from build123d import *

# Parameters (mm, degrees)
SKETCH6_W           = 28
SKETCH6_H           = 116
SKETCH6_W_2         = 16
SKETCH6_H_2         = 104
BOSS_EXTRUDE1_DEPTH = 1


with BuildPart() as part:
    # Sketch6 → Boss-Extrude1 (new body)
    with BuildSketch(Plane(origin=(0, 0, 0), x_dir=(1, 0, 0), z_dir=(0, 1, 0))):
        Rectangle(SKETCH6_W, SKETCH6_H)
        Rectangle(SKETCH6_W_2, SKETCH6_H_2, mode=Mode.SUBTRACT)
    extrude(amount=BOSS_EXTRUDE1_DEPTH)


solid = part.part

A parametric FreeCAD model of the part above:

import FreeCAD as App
import Part
import Sketcher

V = App.Vector
Q = App.Units.Quantity

doc = App.newDocument("Part")
params = doc.addObject("Spreadsheet::Sheet", "Params")
for row, (alias, value) in enumerate([
    ("sketch1_width", "28 mm"),
    ("sketch1_width2", "16 mm"),
    ("sketch1_height", "116 mm"),
    ("sketch1_height2", "104 mm"),
    ("pad1_length", "1 mm"),
], start=1):
    params.set(f"A{row}", alias)
    params.set(f"B{row}", "=" + value)
    params.setAlias(f"B{row}", alias)

body = doc.addObject("PartDesign::Body", "Body")

sketch1 = body.newObject("Sketcher::SketchObject", "Sketch")
sketch1.AttachmentSupport = (doc.getObject("XZ_Plane"), [""])
sketch1.MapMode = "FlatFace"
sketch1.addGeometry(Part.LineSegment(V(-14, -58, 0), V(-14, 58, 0)), False)
sketch1.addGeometry(Part.LineSegment(V(-14, 58, 0), V(14, 58, 0)), False)
sketch1.addGeometry(Part.LineSegment(V(14, 58, 0), V(14, -58, 0)), False)
sketch1.addGeometry(Part.LineSegment(V(14, -58, 0), V(-14, -58, 0)), False)
sketch1.addGeometry(Part.LineSegment(V(8, 52, 0), V(-8, 52, 0)), False)
sketch1.addGeometry(Part.LineSegment(V(-8, 52, 0), V(-8, -52, 0)), False)
sketch1.addGeometry(Part.LineSegment(V(-8, -52, 0), V(8, -52, 0)), False)
sketch1.addGeometry(Part.LineSegment(V(8, -52, 0), V(8, 52, 0)), False)
sketch1.addConstraint(Sketcher.Constraint("Coincident", 0, 2, 1, 1))
sketch1.addConstraint(Sketcher.Constraint("Coincident", 1, 2, 2, 1))
sketch1.addConstraint(Sketcher.Constraint("Coincident", 2, 2, 3, 1))
sketch1.addConstraint(Sketcher.Constraint("Coincident", 3, 2, 0, 1))
sketch1.addConstraint(Sketcher.Constraint("Coincident", 4, 2, 5, 1))
sketch1.addConstraint(Sketcher.Constraint("Coincident", 5, 2, 6, 1))
sketch1.addConstraint(Sketcher.Constraint("Coincident", 6, 2, 7, 1))
sketch1.addConstraint(Sketcher.Constraint("Coincident", 7, 2, 4, 1))
sketch1.addConstraint(Sketcher.Constraint("Vertical", 0))
sketch1.addConstraint(Sketcher.Constraint("Horizontal", 1))
sketch1.addConstraint(Sketcher.Constraint("Vertical", 2))
sketch1.addConstraint(Sketcher.Constraint("Horizontal", 3))
sketch1.addConstraint(Sketcher.Constraint("Horizontal", 4))
sketch1.addConstraint(Sketcher.Constraint("Vertical", 5))
sketch1.addConstraint(Sketcher.Constraint("Horizontal", 6))
sketch1.addConstraint(Sketcher.Constraint("Vertical", 7))
sketch1.addConstraint(Sketcher.Constraint("Symmetric", 0, 2, 2, 2, -1, 1))
sketch1.addConstraint(Sketcher.Constraint("Symmetric", 4, 2, 6, 2, -1, 1))
sketch1.addConstraint(Sketcher.Constraint("DistanceX", 1, 1, 1, 2, Q("28 mm")))
sketch1.addConstraint(Sketcher.Constraint("DistanceX", 4, 2, 4, 1, Q("16 mm")))
sketch1.addConstraint(Sketcher.Constraint("DistanceY", 0, 1, 0, 2, Q("116 mm")))
sketch1.addConstraint(Sketcher.Constraint("DistanceY", 5, 2, 5, 1, Q("104 mm")))
sketch1.setExpression("Constraints[18]", "Params.sketch1_width")
sketch1.setExpression("Constraints[19]", "Params.sketch1_width2")
sketch1.setExpression("Constraints[20]", "Params.sketch1_height")
sketch1.setExpression("Constraints[21]", "Params.sketch1_height2")
pad1 = body.newObject("PartDesign::Pad", "Pad")
pad1.Profile = sketch1
pad1.setExpression("Length", "Params.pad1_length")
pad1.Reversed = True

doc.recompute()
